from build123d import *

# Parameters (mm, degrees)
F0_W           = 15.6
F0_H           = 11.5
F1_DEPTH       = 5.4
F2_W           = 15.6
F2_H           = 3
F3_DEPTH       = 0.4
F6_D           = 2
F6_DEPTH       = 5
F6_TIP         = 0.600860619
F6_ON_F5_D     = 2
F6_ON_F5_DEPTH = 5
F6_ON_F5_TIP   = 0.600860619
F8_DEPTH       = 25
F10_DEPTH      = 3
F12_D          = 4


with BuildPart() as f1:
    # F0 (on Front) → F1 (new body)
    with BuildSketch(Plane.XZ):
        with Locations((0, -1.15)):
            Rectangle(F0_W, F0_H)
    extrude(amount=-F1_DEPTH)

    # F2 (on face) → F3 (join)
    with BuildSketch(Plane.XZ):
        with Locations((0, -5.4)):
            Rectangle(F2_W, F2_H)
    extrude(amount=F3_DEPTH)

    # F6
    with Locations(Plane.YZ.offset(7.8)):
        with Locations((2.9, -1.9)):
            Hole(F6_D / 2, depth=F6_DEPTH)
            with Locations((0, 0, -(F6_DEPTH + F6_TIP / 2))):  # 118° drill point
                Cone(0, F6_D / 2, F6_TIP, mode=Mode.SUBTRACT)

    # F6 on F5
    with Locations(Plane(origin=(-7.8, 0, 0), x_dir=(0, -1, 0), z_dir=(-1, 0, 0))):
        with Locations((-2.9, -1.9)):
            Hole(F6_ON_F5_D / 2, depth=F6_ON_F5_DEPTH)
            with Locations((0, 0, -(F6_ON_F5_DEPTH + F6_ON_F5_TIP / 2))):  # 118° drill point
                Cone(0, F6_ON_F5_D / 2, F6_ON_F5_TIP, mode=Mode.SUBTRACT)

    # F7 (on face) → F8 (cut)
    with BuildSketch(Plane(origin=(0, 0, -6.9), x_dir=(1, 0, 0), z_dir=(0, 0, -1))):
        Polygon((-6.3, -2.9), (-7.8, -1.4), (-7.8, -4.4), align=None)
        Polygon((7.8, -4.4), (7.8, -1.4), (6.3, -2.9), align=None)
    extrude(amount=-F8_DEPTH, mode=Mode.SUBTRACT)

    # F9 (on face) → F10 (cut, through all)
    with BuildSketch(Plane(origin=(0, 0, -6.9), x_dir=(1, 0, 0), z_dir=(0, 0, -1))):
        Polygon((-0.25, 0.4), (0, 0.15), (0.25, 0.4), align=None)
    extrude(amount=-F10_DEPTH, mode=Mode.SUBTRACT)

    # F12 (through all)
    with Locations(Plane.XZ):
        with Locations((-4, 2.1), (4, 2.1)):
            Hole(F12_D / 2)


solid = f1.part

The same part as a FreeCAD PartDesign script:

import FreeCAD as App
import Part
import Sketcher

doc = App.newDocument("Part")
body = doc.addObject("PartDesign::Body", "Body")

sketch1 = body.newObject("Sketcher::SketchObject", "Sketch")
sketch1.AttachmentSupport = (doc.getObject("XZ_Plane"), [""])
sketch1.MapMode = "FlatFace"
sketch1.addGeometry([
    Part.LineSegment(App.Vector(-7.8, 4.6, 0), App.Vector(-7.8, -6.9, 0)),
    Part.LineSegment(App.Vector(-7.8, -6.9, 0), App.Vector(7.8, -6.9, 0)),
    Part.LineSegment(App.Vector(7.8, -6.9, 0), App.Vector(7.8, 4.6, 0)),
    Part.LineSegment(App.Vector(7.8, 4.6, 0), App.Vector(-7.8, 4.6, 0)),
], False)
sketch1.addConstraint([
    Sketcher.Constraint("Coincident", 0, 2, 1, 1),
    Sketcher.Constraint("Coincident", 1, 2, 2, 1),
    Sketcher.Constraint("Coincident", 2, 2, 3, 1),
    Sketcher.Constraint("Coincident", 3, 2, 0, 1),
    Sketcher.Constraint("Vertical", 0),
    Sketcher.Constraint("Horizontal", 1),
    Sketcher.Constraint("Vertical", 2),
    Sketcher.Constraint("Horizontal", 3),
    Sketcher.Constraint("DistanceX", 1, 1, 1, 2, 15.6),
    Sketcher.Constraint("DistanceY", 0, 2, 0, 1, 11.5),
    Sketcher.Constraint("DistanceX", 0, 2, -1, 1, 7.8),
    Sketcher.Constraint("DistanceY", 0, 2, -1, 1, 6.9),
])
pad1 = body.newObject("PartDesign::Pad", "Pad")
pad1.Profile = sketch1
pad1.Length = 5.4
pad1.Reversed = True

sketch2 = body.newObject("Sketcher::SketchObject", "Sketch001")
sketch2.AttachmentSupport = (doc.getObject("XZ_Plane"), [""])
sketch2.MapMode = "FlatFace"
sketch2.addGeometry([
    Part.LineSegment(App.Vector(-7.8, -3.9, 0), App.Vector(-7.8, -6.9, 0)),
    Part.LineSegment(App.Vector(-7.8, -6.9, 0), App.Vector(7.8, -6.9, 0)),
    Part.LineSegment(App.Vector(7.8, -6.9, 0), App.Vector(7.8, -3.9, 0)),
    Part.LineSegment(App.Vector(7.8, -3.9, 0), App.Vector(-7.8, -3.9, 0)),
], False)
sketch2.addConstraint([
    Sketcher.Constraint("Coincident", 0, 2, 1, 1),
    Sketcher.Constraint("Coincident", 1, 2, 2, 1),
    Sketcher.Constraint("Coincident", 2, 2, 3, 1),
    Sketcher.Constraint("Coincident", 3, 2, 0, 1),
    Sketcher.Constraint("Vertical", 0),
    Sketcher.Constraint("Horizontal", 1),
    Sketcher.Constraint("Vertical", 2),
    Sketcher.Constraint("Horizontal", 3),
    Sketcher.Constraint("DistanceY", 0, 2, 0, 1, 3.0),
    Sketcher.Constraint("DistanceX", 1, 1, 1, 2, 15.6),
    Sketcher.Constraint("DistanceX", 0, 2, -1, 1, 7.8),
    Sketcher.Constraint("DistanceY", 0, 2, -1, 1, 6.9),
])
pad2 = body.newObject("PartDesign::Pad", "Pad001")
pad2.Profile = sketch2
pad2.Length = 0.4

sketch3 = body.newObject("Sketcher::SketchObject", "Sketch002")
sketch3.AttachmentSupport = (doc.getObject("YZ_Plane"), [""])
sketch3.MapMode = "FlatFace"
sketch3.AttachmentOffset = App.Placement(App.Vector(0, 0, 7.8), App.Rotation())
sketch3.addGeometry(Part.Circle(App.Vector(2.9, -1.9, 0), App.Vector(0, 0, 1), 1), False)
sketch3.addConstraint([
    Sketcher.Constraint("Diameter", 0, 2.0),
    Sketcher.Constraint("DistanceX", -1, 1, 0, 3, 2.9),
    Sketcher.Constraint("DistanceY", 0, 3, -1, 1, 1.9),
])
doc.recompute()
hole = body.newObject("PartDesign::Hole", "Hole")
hole.Profile = sketch3
hole.ThreadType = "None"
hole.Diameter = 2
hole.DepthType = "Dimension"
hole.Depth = 5
hole.DrillPoint = "Angled"
hole.DrillPointAngle = 118

sketch4 = body.newObject("Sketcher::SketchObject", "Sketch003")
sketch4.AttachmentSupport = (doc.getObject("YZ_Plane"), [""])
sketch4.MapMode = "FlatFace"
sketch4.AttachmentOffset = App.Placement(App.Vector(0, 0, -7.8), App.Rotation())
sketch4.addGeometry(Part.Circle(App.Vector(2.9, -1.9, 0), App.Vector(0, 0, 1), 1), False)
sketch4.addConstraint([
    Sketcher.Constraint("Diameter", 0, 2.0),
    Sketcher.Constraint("DistanceX", -1, 1, 0, 3, 2.9),
    Sketcher.Constraint("DistanceY", 0, 3, -1, 1, 1.9),
])
doc.recompute()
hole2 = body.newObject("PartDesign::Hole", "Hole001")
hole2.Profile = sketch4
hole2.ThreadType = "None"
hole2.Diameter = 2
hole2.DepthType = "Dimension"
hole2.Depth = 5
hole2.DrillPoint = "Angled"
hole2.DrillPointAngle = 118
hole2.Reversed = True

sketch5 = body.newObject("Sketcher::SketchObject", "Sketch004")
sketch5.AttachmentSupport = (doc.getObject("XY_Plane"), [""])
sketch5.MapMode = "FlatFace"
sketch5.AttachmentOffset = App.Placement(App.Vector(0, 0, -6.9), App.Rotation())
sketch5.addGeometry([
    Part.LineSegment(App.Vector(-6.3, 2.9, 0), App.Vector(-7.8, 1.4, 0)),
    Part.LineSegment(App.Vector(-7.8, 1.4, 0), App.Vector(-7.8, 4.4, 0)),
    Part.LineSegment(App.Vector(-7.8, 4.4, 0), App.Vector(-6.3, 2.9, 0)),
    Part.LineSegment(App.Vector(7.8, 4.4, 0), App.Vector(7.8, 1.4, 0)),
    Part.LineSegment(App.Vector(7.8, 1.4, 0), App.Vector(6.3, 2.9, 0)),
    Part.LineSegment(App.Vector(6.3, 2.9, 0), App.Vector(7.8, 4.4, 0)),
], False)
sketch5.addConstraint([
    Sketcher.Constraint("Coincident", 0, 2, 1, 1),
    Sketcher.Constraint("Coincident", 1, 2, 2, 1),
    Sketcher.Constraint("Coincident", 2, 2, 0, 1),
    Sketcher.Constraint("Coincident", 3, 2, 4, 1),
    Sketcher.Constraint("Coincident", 4, 2, 5, 1),
    Sketcher.Constraint("Coincident", 5, 2, 3, 1),
    Sketcher.Constraint("Vertical", 1),
    Sketcher.Constraint("Vertical", 3),
    Sketcher.Constraint("Symmetric", 0, 2, 3, 2, -2),
    Sketcher.Constraint("Symmetric", 2, 2, 4, 2, -2),
    Sketcher.Constraint("Perpendicular", 0, 2),
    Sketcher.Constraint("Parallel", 2, 4),
    Sketcher.Constraint("Perpendicular", 4, 5),
    Sketcher.Constraint("DistanceY", 1, 1, 1, 2, 3.0),
    Sketcher.Constraint("DistanceX", 0, 2, -1, 1, 7.8),
    Sketcher.Constraint("DistanceY", -1, 1, 0, 2, 1.4),
])
pocket1 = body.newObject("PartDesign::Pocket", "Pocket")
pocket1.Profile = sketch5
pocket1.Length = 25
pocket1.Reversed = True

sketch6 = body.newObject("Sketcher::SketchObject", "Sketch005")
sketch6.AttachmentSupport = (doc.getObject("XY_Plane"), [""])
sketch6.MapMode = "FlatFace"
sketch6.AttachmentOffset = App.Placement(App.Vector(0, 0, -6.9), App.Rotation())
sketch6.addGeometry([
    Part.LineSegment(App.Vector(-0.25, -0.4, 0), App.Vector(0, -0.15, 0)),
    Part.LineSegment(App.Vector(0, -0.15, 0), App.Vector(0.25, -0.4, 0)),
    Part.LineSegment(App.Vector(0.25, -0.4, 0), App.Vector(-0.25, -0.4, 0)),
], False)
sketch6.addConstraint([
    Sketcher.Constraint("Coincident", 0, 2, 1, 1),
    Sketcher.Constraint("Coincident", 1, 2, 2, 1),
    Sketcher.Constraint("Coincident", 2, 2, 0, 1),
    Sketcher.Constraint("Horizontal", 2),
    Sketcher.Constraint("PointOnObject", 0, 2, -2),
    Sketcher.Constraint("Perpendicular", 0, 1),
    Sketcher.Constraint("Equal", 0, 1),
    Sketcher.Constraint("DistanceX", 2, 2, 2, 1, 0.5),
    Sketcher.Constraint("DistanceY", 1, 2, -1, 1, 0.4),
])
pocket2 = body.newObject("PartDesign::Pocket", "Pocket001")
pocket2.Profile = sketch6
pocket2.Type = "ThroughAll"
pocket2.Reversed = True

sketch7 = body.newObject("Sketcher::SketchObject", "Sketch006")
sketch7.AttachmentSupport = (doc.getObject("XZ_Plane"), [""])
sketch7.MapMode = "FlatFace"
sketch7.addGeometry([
    Part.Circle(App.Vector(-4, 2.1, 0), App.Vector(0, 0, 1), 2),
    Part.Circle(App.Vector(4, 2.1, 0), App.Vector(0, 0, 1), 2),
], False)
sketch7.addConstraint([
    Sketcher.Constraint("Equal", 0, 1),
    Sketcher.Constraint("Symmetric", 0, 3, 1, 3, -2),
    Sketcher.Constraint("Diameter", 0, 4.0),
    Sketcher.Constraint("DistanceX", 0, 3, -1, 1, 4.0),
    Sketcher.Constraint("DistanceY", -1, 1, 0, 3, 2.1),
])
doc.recompute()
hole3 = body.newObject("PartDesign::Hole", "Hole002")
hole3.Profile = sketch7
hole3.ThreadType = "None"
hole3.Diameter = 4
hole3.DepthType = "ThroughAll"

doc.recompute()
